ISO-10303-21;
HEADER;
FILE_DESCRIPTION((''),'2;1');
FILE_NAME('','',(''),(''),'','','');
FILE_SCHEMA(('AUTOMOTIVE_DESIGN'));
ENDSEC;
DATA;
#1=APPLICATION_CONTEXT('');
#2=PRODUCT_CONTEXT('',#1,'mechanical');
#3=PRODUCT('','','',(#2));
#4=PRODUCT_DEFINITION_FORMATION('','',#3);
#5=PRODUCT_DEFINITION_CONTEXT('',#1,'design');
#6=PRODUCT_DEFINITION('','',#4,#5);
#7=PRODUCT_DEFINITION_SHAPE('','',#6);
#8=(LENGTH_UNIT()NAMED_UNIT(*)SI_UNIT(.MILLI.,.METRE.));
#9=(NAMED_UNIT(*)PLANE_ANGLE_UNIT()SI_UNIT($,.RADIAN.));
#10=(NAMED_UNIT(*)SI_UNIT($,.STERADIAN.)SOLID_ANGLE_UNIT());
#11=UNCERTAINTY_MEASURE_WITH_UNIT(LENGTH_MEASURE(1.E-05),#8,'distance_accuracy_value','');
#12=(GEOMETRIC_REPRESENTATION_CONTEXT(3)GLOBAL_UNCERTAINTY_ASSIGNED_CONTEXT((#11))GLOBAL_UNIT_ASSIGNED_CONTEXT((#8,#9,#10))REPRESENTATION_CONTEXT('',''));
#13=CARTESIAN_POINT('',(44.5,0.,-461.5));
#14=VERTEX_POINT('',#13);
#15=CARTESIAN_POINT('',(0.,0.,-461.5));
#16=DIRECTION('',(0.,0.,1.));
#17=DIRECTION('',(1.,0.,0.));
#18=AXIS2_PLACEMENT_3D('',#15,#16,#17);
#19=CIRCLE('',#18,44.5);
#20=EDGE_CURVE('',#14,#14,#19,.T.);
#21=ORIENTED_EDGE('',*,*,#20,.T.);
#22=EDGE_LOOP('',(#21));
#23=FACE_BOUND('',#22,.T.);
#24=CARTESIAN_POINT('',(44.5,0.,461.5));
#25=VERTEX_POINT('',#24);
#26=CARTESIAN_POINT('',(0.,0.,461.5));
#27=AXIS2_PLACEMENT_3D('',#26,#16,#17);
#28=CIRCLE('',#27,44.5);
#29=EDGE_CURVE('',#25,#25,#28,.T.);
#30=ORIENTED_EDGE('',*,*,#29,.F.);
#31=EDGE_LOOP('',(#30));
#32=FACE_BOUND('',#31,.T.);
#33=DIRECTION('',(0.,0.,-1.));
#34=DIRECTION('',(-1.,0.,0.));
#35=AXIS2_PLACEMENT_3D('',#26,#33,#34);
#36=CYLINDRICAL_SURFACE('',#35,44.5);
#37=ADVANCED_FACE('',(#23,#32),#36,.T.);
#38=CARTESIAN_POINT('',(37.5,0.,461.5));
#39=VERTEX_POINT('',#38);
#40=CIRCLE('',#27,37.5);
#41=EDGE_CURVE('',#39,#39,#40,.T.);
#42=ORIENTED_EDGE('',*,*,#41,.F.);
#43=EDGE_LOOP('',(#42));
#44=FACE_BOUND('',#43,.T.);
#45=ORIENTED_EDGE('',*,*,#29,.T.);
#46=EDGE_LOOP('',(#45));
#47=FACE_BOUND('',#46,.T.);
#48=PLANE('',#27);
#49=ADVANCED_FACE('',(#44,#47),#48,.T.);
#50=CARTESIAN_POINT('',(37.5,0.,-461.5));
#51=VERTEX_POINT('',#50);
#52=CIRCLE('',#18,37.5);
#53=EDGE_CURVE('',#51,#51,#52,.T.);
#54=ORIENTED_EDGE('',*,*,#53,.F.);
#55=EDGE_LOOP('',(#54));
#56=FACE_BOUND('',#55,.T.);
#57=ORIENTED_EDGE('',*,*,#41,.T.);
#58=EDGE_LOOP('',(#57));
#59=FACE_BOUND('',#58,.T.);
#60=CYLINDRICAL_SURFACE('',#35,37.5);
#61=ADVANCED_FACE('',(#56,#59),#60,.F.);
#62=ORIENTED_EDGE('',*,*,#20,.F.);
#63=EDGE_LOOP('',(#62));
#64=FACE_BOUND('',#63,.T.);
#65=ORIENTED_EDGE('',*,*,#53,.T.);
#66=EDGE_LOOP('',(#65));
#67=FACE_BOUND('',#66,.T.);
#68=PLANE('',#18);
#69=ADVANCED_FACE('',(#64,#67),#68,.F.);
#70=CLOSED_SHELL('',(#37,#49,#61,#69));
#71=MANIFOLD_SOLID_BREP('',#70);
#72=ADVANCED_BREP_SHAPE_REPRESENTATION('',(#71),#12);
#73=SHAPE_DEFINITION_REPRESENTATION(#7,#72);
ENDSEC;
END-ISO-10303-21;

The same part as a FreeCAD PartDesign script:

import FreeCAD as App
import Part
import Sketcher
from FreeCAD import Vector
Q = App.Units.Quantity

doc = App.newDocument("Part")
body = doc.addObject("PartDesign::Body", "Body")

# Sketch on XY plane
sketch1 = doc.addObject("Sketcher::SketchObject", "Sketch")
body.addObject(sketch1)
sketch1.AttachmentSupport = (doc.XY_Plane, [""])
sketch1.MapMode = "FlatFace"
sketch1.addGeometry(Part.Circle(Vector(0, 0, 0), Vector(0, 0, 1), 44.5), False)
sketch1.addGeometry(Part.Circle(Vector(0, 0, 0), Vector(0, 0, 1), 37.5), False)
sketch1.addConstraint(Sketcher.Constraint("Coincident", 0, 3, -1, 1))
sketch1.addConstraint(Sketcher.Constraint("Coincident", 1, 3, -1, 1))
sketch1.addConstraint(Sketcher.Constraint("Diameter", 0, Q("89 mm")))
sketch1.addConstraint(Sketcher.Constraint("Diameter", 1, Q("75 mm")))
pad1 = doc.addObject("PartDesign::Pad", "Pad")
body.addObject(pad1)
pad1.Profile = sketch1
pad1.Length = 923
pad1.Midplane = True

doc.recompute()
